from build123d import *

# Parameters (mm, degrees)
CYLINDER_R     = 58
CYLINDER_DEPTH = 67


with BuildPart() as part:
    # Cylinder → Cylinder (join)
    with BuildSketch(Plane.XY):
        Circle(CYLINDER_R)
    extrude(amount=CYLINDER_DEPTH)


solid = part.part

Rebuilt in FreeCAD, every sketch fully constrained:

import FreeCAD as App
import Part
import Sketcher
Q = App.Units.Quantity

doc = App.newDocument("Part")
body = doc.addObject("PartDesign::Body", "Body")

# Sketch on XY plane
sketch1 = doc.addObject("Sketcher::SketchObject", "Sketch")
body.addObject(sketch1)
sketch1.AttachmentSupport = (doc.XY_Plane, [""])
sketch1.MapMode = "FlatFace"
sketch1.addGeometry(Part.Circle(App.Vector(0, 0, 0), App.Vector(0, 0, 1), 58), False)
sketch1.addConstraint([
    Sketcher.Constraint("Coincident", 0, 3, -1, 1),
    Sketcher.Constraint("Diameter", 0, Q("116 mm")),
])
pad1 = doc.addObject("PartDesign::Pad", "Pad")
body.addObject(pad1)
pad1.Profile = sketch1
pad1.Length = 67

doc.recompute()
